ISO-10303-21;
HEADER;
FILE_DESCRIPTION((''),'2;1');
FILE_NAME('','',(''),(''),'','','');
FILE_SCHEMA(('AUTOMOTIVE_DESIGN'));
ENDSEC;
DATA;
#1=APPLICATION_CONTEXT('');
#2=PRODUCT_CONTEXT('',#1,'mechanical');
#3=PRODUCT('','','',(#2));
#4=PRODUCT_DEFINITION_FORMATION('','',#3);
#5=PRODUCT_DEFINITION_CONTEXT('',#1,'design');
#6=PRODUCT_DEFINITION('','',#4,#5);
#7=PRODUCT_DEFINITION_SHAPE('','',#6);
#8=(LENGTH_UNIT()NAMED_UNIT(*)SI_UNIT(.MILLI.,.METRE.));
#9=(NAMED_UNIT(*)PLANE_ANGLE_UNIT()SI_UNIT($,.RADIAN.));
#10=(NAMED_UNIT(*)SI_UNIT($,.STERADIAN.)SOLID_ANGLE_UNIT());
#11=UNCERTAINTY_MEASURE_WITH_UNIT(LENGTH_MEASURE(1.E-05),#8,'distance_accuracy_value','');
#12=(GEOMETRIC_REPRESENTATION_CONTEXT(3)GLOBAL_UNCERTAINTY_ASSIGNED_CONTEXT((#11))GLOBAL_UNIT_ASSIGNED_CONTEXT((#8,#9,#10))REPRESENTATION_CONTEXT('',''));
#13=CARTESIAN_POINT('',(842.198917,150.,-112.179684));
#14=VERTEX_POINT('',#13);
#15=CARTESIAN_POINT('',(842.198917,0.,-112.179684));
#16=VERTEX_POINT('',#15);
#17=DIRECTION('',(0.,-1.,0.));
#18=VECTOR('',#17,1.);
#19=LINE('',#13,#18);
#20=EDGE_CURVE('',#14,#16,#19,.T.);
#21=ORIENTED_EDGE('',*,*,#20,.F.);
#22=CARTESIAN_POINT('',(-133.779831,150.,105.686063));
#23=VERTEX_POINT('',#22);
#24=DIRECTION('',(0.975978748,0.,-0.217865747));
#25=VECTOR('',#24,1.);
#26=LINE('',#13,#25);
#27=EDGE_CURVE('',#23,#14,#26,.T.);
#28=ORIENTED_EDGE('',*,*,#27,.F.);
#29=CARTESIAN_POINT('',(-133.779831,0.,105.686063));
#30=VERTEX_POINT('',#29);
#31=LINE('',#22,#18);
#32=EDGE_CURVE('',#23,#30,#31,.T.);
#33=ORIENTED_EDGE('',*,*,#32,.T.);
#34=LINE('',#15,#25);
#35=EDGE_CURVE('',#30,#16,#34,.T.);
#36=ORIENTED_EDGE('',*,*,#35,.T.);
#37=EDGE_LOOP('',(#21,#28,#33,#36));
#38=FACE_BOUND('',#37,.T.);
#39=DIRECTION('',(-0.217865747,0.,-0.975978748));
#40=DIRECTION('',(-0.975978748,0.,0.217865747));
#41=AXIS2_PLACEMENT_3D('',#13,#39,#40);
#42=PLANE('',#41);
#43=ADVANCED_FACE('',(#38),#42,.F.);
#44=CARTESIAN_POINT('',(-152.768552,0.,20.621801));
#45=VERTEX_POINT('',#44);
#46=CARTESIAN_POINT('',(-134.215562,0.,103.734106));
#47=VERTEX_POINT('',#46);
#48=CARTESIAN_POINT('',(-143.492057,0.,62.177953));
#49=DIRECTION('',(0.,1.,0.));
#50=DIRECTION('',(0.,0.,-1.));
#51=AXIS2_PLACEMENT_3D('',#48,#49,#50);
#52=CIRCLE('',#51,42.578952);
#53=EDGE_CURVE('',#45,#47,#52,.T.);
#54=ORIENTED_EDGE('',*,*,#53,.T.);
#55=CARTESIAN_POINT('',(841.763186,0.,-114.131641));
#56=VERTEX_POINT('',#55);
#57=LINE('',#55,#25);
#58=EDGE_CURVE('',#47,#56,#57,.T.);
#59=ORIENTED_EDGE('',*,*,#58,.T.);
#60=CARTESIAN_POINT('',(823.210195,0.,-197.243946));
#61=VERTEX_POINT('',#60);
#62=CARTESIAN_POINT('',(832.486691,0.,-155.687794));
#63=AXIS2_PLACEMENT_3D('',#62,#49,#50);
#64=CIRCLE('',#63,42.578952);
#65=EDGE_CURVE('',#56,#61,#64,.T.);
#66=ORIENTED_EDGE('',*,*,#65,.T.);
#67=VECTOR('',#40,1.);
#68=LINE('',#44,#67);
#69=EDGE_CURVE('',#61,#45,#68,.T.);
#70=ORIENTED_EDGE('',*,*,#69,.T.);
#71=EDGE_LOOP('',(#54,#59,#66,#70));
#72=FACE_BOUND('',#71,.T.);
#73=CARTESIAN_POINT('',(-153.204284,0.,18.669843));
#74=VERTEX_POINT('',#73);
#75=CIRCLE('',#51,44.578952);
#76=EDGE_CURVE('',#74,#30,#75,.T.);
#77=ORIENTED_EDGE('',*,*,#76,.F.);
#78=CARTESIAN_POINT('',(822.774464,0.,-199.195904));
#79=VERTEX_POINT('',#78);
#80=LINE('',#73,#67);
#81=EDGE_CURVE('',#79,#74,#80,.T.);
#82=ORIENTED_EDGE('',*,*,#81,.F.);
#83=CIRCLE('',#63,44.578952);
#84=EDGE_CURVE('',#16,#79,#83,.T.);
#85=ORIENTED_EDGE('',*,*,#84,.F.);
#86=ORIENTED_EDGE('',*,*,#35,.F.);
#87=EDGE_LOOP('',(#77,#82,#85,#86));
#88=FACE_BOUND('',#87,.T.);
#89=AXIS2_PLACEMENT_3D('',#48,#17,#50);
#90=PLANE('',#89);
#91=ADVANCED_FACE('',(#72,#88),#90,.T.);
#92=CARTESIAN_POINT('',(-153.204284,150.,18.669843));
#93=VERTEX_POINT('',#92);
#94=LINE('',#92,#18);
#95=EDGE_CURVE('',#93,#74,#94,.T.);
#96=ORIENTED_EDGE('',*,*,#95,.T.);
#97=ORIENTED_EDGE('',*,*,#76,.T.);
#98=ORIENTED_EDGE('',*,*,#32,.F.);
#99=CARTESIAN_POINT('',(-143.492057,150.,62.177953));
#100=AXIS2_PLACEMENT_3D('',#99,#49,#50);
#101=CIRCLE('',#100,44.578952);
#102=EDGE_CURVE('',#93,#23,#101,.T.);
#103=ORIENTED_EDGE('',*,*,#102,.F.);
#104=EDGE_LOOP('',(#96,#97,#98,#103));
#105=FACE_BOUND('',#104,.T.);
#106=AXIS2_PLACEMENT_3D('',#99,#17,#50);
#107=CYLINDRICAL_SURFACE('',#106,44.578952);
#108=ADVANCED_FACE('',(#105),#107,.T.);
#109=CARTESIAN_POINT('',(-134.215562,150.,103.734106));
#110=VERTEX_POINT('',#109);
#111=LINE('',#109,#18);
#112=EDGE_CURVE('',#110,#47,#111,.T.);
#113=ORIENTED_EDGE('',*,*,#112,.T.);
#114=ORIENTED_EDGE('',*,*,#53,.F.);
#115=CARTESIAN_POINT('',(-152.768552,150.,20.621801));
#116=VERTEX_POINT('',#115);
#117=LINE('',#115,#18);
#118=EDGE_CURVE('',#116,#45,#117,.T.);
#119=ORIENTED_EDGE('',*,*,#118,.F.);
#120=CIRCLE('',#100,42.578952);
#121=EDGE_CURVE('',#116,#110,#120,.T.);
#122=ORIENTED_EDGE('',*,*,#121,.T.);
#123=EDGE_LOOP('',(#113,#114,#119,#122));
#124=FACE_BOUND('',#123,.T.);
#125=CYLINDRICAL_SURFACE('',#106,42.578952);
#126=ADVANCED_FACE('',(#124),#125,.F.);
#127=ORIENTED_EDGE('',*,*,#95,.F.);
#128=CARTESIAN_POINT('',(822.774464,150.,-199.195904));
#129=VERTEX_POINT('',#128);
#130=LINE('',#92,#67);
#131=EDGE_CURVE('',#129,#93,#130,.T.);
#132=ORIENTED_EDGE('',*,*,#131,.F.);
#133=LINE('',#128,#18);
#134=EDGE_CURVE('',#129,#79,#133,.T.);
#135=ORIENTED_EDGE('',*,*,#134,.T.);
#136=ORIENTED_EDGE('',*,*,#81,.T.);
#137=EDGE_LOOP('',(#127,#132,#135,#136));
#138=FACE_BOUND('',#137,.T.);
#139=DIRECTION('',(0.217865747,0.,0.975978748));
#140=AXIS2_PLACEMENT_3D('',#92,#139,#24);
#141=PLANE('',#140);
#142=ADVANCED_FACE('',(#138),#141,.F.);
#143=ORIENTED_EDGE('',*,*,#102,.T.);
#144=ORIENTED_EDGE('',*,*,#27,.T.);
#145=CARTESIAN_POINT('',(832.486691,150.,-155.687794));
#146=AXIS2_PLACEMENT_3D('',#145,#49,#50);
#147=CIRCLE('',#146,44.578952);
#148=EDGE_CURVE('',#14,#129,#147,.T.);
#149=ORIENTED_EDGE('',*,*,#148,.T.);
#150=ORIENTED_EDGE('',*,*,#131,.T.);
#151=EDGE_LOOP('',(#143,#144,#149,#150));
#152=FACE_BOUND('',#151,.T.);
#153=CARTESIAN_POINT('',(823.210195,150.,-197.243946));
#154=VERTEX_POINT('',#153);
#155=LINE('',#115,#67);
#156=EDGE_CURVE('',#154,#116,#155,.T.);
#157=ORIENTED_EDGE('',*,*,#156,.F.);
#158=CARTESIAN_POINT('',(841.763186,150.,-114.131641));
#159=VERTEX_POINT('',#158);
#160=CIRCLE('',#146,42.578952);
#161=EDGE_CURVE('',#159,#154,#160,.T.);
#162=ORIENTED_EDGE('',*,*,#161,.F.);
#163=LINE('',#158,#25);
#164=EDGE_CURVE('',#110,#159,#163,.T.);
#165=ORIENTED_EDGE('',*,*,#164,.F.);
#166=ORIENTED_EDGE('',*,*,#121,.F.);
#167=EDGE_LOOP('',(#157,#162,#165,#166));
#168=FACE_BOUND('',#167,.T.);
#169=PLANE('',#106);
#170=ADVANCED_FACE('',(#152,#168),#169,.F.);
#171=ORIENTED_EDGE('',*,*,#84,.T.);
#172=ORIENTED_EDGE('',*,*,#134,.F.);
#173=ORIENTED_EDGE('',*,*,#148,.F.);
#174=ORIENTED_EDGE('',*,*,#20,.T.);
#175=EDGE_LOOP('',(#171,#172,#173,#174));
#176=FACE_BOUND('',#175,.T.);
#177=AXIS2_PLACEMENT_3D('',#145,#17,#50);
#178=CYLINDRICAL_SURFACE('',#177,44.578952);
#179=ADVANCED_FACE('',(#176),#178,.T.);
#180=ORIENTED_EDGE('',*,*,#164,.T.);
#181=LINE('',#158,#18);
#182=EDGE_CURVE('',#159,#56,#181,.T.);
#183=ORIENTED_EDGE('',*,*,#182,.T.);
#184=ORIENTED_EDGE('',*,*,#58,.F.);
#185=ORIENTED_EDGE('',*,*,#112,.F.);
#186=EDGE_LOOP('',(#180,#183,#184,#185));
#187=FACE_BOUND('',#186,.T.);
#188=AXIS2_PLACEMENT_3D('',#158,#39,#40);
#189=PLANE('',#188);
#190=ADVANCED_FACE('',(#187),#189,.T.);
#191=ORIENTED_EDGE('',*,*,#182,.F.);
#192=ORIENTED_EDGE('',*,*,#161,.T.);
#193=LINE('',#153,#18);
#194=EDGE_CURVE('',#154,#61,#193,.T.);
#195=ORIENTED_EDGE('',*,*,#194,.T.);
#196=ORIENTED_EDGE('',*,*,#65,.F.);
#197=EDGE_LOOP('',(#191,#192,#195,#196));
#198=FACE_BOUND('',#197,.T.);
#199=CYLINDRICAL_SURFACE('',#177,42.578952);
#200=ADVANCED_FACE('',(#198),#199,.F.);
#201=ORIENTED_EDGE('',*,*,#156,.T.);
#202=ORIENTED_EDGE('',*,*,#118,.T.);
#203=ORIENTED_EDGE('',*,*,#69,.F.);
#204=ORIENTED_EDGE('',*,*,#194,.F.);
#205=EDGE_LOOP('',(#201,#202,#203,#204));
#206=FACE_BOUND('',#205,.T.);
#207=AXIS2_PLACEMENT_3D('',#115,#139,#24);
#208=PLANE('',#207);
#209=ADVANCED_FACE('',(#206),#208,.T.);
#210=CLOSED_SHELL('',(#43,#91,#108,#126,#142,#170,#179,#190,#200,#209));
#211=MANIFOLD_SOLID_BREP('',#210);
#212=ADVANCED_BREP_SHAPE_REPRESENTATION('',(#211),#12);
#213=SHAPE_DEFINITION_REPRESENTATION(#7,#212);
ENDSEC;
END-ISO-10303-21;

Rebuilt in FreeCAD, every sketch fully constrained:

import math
import FreeCAD as App
import Part
import Sketcher

V = App.Vector
Q = App.Units.Quantity

doc = App.newDocument("Part")
params = doc.addObject("Spreadsheet::Sheet", "Params")
for row, (alias, value) in enumerate([
    ("sketch1_length", "1000 mm"),
    ("pad1_length", "150 mm"),
], start=1):
    params.set(f"A{row}", alias)
    params.set(f"B{row}", "=" + value)
    params.setAlias(f"B{row}", alias)

body = doc.addObject("PartDesign::Body", "Body")

sketch1 = body.newObject("Sketcher::SketchObject", "Sketch")
sketch1.AttachmentSupport = (doc.getObject("XZ_Plane"), [""])
sketch1.MapMode = "FlatFace"
sketch1.addGeometry([
    Part.LineSegment(V(822.774464, -199.195904, 0), V(-153.204284, 18.669843, 0)),
    Part.ArcOfCircle(Part.Circle(V(-143.492057, 62.177953, 0), V(0, 0, 1), 44.578952), math.radians(77.416291), math.radians(257.416291)),
    Part.LineSegment(V(-133.779831, 105.686063, 0), V(842.198917, -112.179684, 0)),
    Part.ArcOfCircle(Part.Circle(V(832.486691, -155.687794, 0), V(0, 0, 1), 44.578952), math.radians(-102.583709), math.radians(77.416291)),
    Part.LineSegment(V(-152.768552, 20.621801, 0), V(823.210195, -197.243946, 0)),
    Part.ArcOfCircle(Part.Circle(V(832.486691, -155.687794, 0), V(0, 0, 1), 42.578952), math.radians(-102.583709), math.radians(77.416291)),
    Part.LineSegment(V(841.763186, -114.131641, 0), V(-134.215562, 103.734106, 0)),
    Part.ArcOfCircle(Part.Circle(V(-143.492057, 62.177953, 0), V(0, 0, 1), 42.578952), math.radians(77.416291), math.radians(257.416291)),
], False)
sketch1.addConstraint([
    Sketcher.Constraint("Tangent", 0, 2, 1, 2),
    Sketcher.Constraint("Tangent", 1, 1, 2, 1),
    Sketcher.Constraint("Tangent", 2, 2, 3, 2),
    Sketcher.Constraint("Tangent", 3, 1, 0, 1),
    Sketcher.Constraint("Tangent", 4, 2, 5, 1),
    Sketcher.Constraint("Tangent", 5, 2, 6, 1),
    Sketcher.Constraint("Tangent", 6, 2, 7, 1),
    Sketcher.Constraint("Tangent", 7, 2, 4, 1),
    Sketcher.Constraint("Coincident", 5, 3, 3, 3),
    Sketcher.Constraint("Coincident", 7, 3, 1, 3),
    Sketcher.Constraint("Equal", 1, 3),
    Sketcher.Constraint("Equal", 5, 7),
    Sketcher.Constraint("Distance", 0, Q("1000 mm")),
    Sketcher.Constraint("Radius", 1, Q("44.578952 mm")),
    Sketcher.Constraint("Radius", 5, Q("42.578952 mm")),
    Sketcher.Constraint("DistanceY", -1, 1, 7, 2, Q("20.621801 mm")),
    Sketcher.Constraint("DistanceX", -1, 1, 3, 3, Q("832.486691 mm")),
    Sketcher.Constraint("DistanceX", 1, 1, -1, 1, Q("133.779831 mm")),
])
sketch1.setExpression("Constraints[12]", "Params.sketch1_length")
pad1 = body.newObject("PartDesign::Pad", "Pad")
pad1.Profile = sketch1
pad1.setExpression("Length", "Params.pad1_length")
pad1.Reversed = True

doc.recompute()
